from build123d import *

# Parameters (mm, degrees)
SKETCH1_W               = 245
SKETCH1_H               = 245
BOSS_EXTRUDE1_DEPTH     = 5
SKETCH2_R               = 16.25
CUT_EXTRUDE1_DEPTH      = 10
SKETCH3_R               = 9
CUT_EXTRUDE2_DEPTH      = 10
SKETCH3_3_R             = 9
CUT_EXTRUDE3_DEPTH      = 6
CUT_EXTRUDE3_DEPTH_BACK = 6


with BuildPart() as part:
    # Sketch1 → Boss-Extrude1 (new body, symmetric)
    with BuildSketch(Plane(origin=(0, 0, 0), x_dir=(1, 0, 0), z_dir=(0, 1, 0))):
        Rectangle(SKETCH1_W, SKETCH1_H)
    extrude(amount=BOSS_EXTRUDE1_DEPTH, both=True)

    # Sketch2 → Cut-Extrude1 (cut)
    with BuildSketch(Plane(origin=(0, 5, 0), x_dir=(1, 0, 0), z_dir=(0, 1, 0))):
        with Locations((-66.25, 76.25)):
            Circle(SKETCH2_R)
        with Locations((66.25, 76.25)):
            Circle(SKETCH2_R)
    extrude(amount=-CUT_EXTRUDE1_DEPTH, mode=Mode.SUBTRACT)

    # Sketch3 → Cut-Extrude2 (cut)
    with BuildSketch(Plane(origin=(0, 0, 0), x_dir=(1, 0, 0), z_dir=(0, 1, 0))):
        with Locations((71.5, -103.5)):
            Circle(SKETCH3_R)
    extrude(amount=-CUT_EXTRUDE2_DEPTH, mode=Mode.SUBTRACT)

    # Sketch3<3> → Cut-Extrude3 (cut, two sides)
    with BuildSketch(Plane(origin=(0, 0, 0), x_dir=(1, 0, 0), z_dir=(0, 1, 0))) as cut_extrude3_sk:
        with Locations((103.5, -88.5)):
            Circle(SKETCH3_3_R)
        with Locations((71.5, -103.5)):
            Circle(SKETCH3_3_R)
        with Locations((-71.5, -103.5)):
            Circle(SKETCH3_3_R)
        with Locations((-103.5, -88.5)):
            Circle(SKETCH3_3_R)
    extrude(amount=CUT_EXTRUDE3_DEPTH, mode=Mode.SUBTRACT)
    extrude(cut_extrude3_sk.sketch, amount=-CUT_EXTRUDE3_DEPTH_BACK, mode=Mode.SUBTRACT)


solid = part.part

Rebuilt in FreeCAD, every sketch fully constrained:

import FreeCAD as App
import Part
import Sketcher
from FreeCAD import Vector

doc = App.newDocument("Part")
params = doc.addObject("Spreadsheet::Sheet", "Params")
for row, (alias, value) in enumerate([
    ("sketch1_width", "245 mm"),
    ("pad1_length", "10 mm"),
    ("sketch2_diameter", "32.5 mm"),
    ("pocket1_length", "10 mm"),
    ("sketch3_diameter", "18 mm"),
    ("pocket2_length", "10 mm"),
    ("sketch4_diameter", "18 mm"),
], start=1):
    params.set(f"A{row}", alias)
    params.set(f"B{row}", "=" + value)
    params.setAlias(f"B{row}", alias)

body = doc.addObject("PartDesign::Body", "Body")

sketch1 = body.newObject("Sketcher::SketchObject", "Sketch")
sketch1.AttachmentSupport = (doc.getObject("XZ_Plane"), [""])
sketch1.MapMode = "FlatFace"
sketch1.addGeometry([
    Part.LineSegment(Vector(-122, -122, 0), Vector(-122, 122, 0)),
    Part.LineSegment(Vector(-122, 122, 0), Vector(122, 122, 0)),
    Part.LineSegment(Vector(122, 122, 0), Vector(122, -122, 0)),
    Part.LineSegment(Vector(122, -122, 0), Vector(-122, -122, 0)),
], False)
sketch1.addConstraint([
    Sketcher.Constraint("Coincident", 0, 2, 1, 1),
    Sketcher.Constraint("Coincident", 1, 2, 2, 1),
    Sketcher.Constraint("Coincident", 2, 2, 3, 1),
    Sketcher.Constraint("Coincident", 3, 2, 0, 1),
    Sketcher.Constraint("Vertical", 0),
    Sketcher.Constraint("Horizontal", 1),
    Sketcher.Constraint("Vertical", 2),
    Sketcher.Constraint("Horizontal", 3),
    Sketcher.Constraint("Symmetric", 0, 2, 2, 2, -1, 1),
    Sketcher.Constraint("Equal", 3, 0),
    Sketcher.Constraint("DistanceX", 1, 1, 1, 2, 245.0),
])
sketch1.setExpression("Constraints[10]", "Params.sketch1_width")
pad1 = body.newObject("PartDesign::Pad", "Pad")
pad1.Profile = sketch1
pad1.setExpression("Length", "Params.pad1_length")
pad1.Midplane = True

sketch2 = body.newObject("Sketcher::SketchObject", "Sketch001")
sketch2.AttachmentSupport = (doc.getObject("XZ_Plane"), [""])
sketch2.MapMode = "FlatFace"
sketch2.AttachmentOffset = App.Placement(Vector(0, 0, -5), App.Rotation())
sketch2.addGeometry([
    Part.Circle(Vector(-66, -76, 0), Vector(0, 0, 1), 16),
    Part.Circle(Vector(66, -76, 0), Vector(0, 0, 1), 16),
], False)
sketch2.addConstraint([
    Sketcher.Constraint("Equal", 0, 1),
    Sketcher.Constraint("Symmetric", 0, 3, 1, 3, -2),
    Sketcher.Constraint("Diameter", 0, 32.5),
    Sketcher.Constraint("DistanceX", 0, 3, 1, 3, 132.5),
    Sketcher.Constraint("DistanceY", 0, 3, -1, 1, 76.25),
])
sketch2.setExpression("Constraints[2]", "Params.sketch2_diameter")
pocket1 = body.newObject("PartDesign::Pocket", "Pocket")
pocket1.Profile = sketch2
pocket1.setExpression("Length", "Params.pocket1_length")
pocket1.Reversed = True

sketch3 = body.newObject("Sketcher::SketchObject", "Sketch002")
sketch3.AttachmentSupport = (doc.getObject("XZ_Plane"), [""])
sketch3.MapMode = "FlatFace"
sketch3.addGeometry(Part.Circle(Vector(72, 104, 0), Vector(0, 0, 1), 9), False)
sketch3.addConstraint([
    Sketcher.Constraint("Diameter", 0, 18.0),
    Sketcher.Constraint("DistanceX", -1, 1, 0, 3, 71.5),
    Sketcher.Constraint("DistanceY", -1, 1, 0, 3, 103.5),
])
sketch3.setExpression("Constraints[0]", "Params.sketch3_diameter")
pocket2 = body.newObject("PartDesign::Pocket", "Pocket001")
pocket2.Profile = sketch3
pocket2.setExpression("Length", "Params.pocket2_length")
pocket2.Reversed = True

sketch4 = body.newObject("Sketcher::SketchObject", "Sketch003")
sketch4.AttachmentSupport = (doc.getObject("XZ_Plane"), [""])
sketch4.MapMode = "FlatFace"
sketch4.addGeometry([
    Part.Circle(Vector(104, 88, 0), Vector(0, 0, 1), 9),
    Part.Circle(Vector(72, 104, 0), Vector(0, 0, 1), 9),
    Part.Circle(Vector(-72, 104, 0), Vector(0, 0, 1), 9),
    Part.Circle(Vector(-104, 88, 0), Vector(0, 0, 1), 9),
], False)
sketch4.addConstraint([
    Sketcher.Constraint("Equal", 0, 1),
    Sketcher.Constraint("Equal", 1, 2),
    Sketcher.Constraint("Equal", 2, 3),
    Sketcher.Constraint("Symmetric", 1, 3, 2, 3, -2),
    Sketcher.Constraint("Symmetric", 0, 3, 3, 3, -2),
    Sketcher.Constraint("Diameter", 0, 18.0),
    Sketcher.Constraint("DistanceX", 1, 3, 0, 3, 32.0),
    Sketcher.Constraint("DistanceY", 0, 3, 1, 3, 15.0),
    Sketcher.Constraint("DistanceX", 2, 3, 1, 3, 143.0),
    Sketcher.Constraint("DistanceY", -1, 1, 0, 3, 88.5),
])
sketch4.setExpression("Constraints[5]", "Params.sketch4_diameter")
pocket3 = body.newObject("PartDesign::Pocket", "Pocket002")
pocket3.Profile = sketch4
pocket3.Type = "ThroughAll"
pocket3.Midplane = True

doc.recompute()
